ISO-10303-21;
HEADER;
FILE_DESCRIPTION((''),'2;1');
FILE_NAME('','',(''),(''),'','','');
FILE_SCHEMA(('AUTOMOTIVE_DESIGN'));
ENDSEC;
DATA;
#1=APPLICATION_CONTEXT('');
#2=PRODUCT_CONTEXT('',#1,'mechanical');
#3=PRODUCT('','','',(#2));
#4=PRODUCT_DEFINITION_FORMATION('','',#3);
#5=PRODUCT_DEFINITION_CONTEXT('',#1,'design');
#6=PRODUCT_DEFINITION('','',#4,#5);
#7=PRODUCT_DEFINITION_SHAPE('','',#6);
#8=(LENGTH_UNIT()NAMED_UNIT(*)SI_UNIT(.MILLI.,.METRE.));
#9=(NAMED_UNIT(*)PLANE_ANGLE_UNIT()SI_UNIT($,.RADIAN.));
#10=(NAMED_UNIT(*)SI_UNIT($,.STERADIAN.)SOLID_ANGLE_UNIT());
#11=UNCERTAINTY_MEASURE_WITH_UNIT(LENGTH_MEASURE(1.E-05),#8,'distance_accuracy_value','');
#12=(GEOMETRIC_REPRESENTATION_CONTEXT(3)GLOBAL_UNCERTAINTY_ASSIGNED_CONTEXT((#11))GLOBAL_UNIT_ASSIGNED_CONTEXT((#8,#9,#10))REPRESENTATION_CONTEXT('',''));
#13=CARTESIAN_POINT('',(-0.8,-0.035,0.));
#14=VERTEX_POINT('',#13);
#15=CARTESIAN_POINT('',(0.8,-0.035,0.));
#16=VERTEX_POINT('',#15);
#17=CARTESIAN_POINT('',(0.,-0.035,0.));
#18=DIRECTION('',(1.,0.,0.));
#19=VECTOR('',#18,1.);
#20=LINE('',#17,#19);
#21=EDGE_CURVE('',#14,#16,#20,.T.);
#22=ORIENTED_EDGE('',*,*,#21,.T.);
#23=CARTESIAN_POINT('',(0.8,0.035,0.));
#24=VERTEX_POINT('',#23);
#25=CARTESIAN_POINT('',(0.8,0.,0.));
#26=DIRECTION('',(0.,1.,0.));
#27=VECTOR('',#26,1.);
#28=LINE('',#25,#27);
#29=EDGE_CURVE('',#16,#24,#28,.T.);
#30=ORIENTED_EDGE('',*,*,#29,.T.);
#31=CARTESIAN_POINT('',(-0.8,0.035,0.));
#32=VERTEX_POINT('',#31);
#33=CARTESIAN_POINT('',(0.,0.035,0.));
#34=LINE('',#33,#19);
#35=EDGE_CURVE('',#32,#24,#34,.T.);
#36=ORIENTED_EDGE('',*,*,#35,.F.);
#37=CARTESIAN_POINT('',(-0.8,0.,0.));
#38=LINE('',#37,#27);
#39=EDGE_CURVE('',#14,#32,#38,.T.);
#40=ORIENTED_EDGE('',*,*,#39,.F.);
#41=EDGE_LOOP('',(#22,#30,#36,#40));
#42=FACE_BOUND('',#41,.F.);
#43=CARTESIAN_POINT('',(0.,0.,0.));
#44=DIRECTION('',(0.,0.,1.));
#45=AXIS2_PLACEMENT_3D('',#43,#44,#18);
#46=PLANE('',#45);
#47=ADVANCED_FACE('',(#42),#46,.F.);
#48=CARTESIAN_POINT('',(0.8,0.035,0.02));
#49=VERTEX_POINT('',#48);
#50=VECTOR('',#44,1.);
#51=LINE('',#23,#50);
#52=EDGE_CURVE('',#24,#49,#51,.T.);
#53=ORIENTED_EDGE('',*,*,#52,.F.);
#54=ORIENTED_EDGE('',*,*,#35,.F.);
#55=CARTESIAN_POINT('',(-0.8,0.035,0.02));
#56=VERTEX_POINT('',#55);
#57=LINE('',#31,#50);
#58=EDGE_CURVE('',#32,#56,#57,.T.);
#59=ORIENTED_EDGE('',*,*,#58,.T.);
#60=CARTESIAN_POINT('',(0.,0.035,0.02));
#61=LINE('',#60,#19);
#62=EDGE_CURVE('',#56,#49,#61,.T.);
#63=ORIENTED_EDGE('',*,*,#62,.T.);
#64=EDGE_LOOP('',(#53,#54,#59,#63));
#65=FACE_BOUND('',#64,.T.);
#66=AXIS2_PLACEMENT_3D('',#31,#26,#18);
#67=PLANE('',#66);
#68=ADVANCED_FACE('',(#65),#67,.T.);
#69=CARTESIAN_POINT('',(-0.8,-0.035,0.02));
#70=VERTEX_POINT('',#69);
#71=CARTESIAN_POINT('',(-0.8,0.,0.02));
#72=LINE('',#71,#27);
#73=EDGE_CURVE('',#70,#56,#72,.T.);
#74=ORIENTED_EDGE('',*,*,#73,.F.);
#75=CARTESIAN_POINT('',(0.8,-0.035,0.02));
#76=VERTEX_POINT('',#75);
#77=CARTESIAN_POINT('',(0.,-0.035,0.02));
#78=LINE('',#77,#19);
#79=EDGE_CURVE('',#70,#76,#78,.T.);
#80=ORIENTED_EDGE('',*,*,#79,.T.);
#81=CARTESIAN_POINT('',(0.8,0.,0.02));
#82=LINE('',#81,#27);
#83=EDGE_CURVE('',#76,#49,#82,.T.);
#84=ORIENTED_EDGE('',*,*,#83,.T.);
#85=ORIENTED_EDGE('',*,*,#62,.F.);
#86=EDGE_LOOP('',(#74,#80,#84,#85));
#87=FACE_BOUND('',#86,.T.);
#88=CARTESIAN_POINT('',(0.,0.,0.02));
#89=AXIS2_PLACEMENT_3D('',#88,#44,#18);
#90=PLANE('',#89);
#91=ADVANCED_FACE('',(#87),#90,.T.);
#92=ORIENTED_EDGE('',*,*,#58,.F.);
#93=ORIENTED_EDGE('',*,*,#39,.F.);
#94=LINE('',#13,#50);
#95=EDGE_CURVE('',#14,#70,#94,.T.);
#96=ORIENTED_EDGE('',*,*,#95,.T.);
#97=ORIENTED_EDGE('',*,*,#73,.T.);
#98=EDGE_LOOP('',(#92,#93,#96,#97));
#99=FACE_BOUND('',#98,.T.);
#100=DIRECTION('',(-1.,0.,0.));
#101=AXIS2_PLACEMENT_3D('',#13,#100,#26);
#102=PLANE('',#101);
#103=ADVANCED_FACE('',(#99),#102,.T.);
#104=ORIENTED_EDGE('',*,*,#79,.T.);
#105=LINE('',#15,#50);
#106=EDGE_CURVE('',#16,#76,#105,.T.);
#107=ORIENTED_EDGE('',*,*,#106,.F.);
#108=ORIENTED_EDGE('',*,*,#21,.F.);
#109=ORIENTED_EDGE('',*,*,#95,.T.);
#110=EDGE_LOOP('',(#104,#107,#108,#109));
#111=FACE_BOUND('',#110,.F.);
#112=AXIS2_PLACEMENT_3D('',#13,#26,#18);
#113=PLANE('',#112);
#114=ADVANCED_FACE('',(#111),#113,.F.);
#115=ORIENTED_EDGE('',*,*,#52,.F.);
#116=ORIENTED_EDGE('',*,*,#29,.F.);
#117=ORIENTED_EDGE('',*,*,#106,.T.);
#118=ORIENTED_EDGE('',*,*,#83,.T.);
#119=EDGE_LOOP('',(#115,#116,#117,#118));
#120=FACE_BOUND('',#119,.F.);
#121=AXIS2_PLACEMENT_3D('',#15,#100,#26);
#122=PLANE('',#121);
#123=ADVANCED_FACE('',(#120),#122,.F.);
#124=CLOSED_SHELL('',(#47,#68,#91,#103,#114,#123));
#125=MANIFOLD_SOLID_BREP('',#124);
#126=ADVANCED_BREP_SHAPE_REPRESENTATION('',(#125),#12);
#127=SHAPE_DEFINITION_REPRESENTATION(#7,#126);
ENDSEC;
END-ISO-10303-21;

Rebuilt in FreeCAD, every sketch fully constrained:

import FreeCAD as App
import Part
import Sketcher

V = App.Vector


def add_polygon(sketch, points):
    """Adds a closed chain of lines whose ends are joined by coincident constraints."""
    first, n = sketch.GeometryCount, len(points)
    for a, b in zip(points, points[1:] + points[:1]):
        sketch.addGeometry(Part.LineSegment(App.Vector(*a, 0), App.Vector(*b, 0)), False)
    for i in range(n):
        sketch.addConstraint(Sketcher.Constraint("Coincident", first + i, 2, first + (i + 1) % n, 1))

doc = App.newDocument("Part")
body = doc.addObject("PartDesign::Body", "Body")

# Sketch on XY plane
sketch1 = doc.addObject("Sketcher::SketchObject", "Sketch")
body.addObject(sketch1)
sketch1.AttachmentSupport = (doc.XY_Plane, [""])
sketch1.MapMode = "FlatFace"
add_polygon(sketch1, [(-0.8, 0.04), (-0.8, -0.04), (0.8, -0.04), (0.8, 0.04)])  # lines 0-3
sketch1.addConstraint(Sketcher.Constraint("Vertical", 0))
sketch1.addConstraint(Sketcher.Constraint("Horizontal", 1))
sketch1.addConstraint(Sketcher.Constraint("Vertical", 2))
sketch1.addConstraint(Sketcher.Constraint("Horizontal", 3))
sketch1.addConstraint(Sketcher.Constraint("Symmetric", 0, 2, 2, 2, -1, 1))
sketch1.addConstraint(Sketcher.Constraint("DistanceX", 1, 1, 1, 2, 1.6))
sketch1.addConstraint(Sketcher.Constraint("DistanceY", 0, 2, 0, 1, 0.07))
pad1 = doc.addObject("PartDesign::Pad", "Pad")
body.addObject(pad1)
pad1.Profile = sketch1
pad1.Length = 0.02

doc.recompute()
